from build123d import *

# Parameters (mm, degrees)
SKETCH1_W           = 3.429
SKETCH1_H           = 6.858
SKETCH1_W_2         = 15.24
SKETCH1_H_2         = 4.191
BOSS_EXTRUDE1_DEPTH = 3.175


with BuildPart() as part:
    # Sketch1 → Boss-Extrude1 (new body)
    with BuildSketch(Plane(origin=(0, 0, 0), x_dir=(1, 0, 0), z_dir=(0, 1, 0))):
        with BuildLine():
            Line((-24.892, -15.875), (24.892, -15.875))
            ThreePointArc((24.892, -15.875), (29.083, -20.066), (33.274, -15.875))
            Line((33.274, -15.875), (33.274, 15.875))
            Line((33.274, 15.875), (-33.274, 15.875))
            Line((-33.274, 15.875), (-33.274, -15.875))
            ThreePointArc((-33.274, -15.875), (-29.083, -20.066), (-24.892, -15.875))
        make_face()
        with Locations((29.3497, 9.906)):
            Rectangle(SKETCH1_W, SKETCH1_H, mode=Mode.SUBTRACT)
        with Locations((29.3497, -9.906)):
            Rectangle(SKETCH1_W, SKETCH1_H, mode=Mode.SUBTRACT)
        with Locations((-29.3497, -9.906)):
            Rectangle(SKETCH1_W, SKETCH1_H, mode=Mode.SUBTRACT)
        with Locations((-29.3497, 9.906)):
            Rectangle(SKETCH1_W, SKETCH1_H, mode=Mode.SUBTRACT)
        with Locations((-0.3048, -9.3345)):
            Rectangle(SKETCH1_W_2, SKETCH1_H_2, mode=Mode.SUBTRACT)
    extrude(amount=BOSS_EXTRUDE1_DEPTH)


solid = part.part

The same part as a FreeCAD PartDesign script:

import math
import FreeCAD as App
import Part
import Sketcher
Q = App.Units.Quantity


def add_polygon(sketch, points):
    """Adds a closed chain of lines whose ends are joined by coincident constraints."""
    first, n = sketch.GeometryCount, len(points)
    for a, b in zip(points, points[1:] + points[:1]):
        sketch.addGeometry(Part.LineSegment(App.Vector(*a, 0), App.Vector(*b, 0)), False)
    for i in range(n):
        sketch.addConstraint(Sketcher.Constraint("Coincident", first + i, 2, first + (i + 1) % n, 1))

doc = App.newDocument("Part")
body = doc.addObject("PartDesign::Body", "Body")

# Sketch on XZ plane
sketch1 = body.newObject("Sketcher::SketchObject", "Sketch")
sketch1.AttachmentSupport = (doc.getObject("XZ_Plane"), [""])
sketch1.MapMode = "FlatFace"
sketch1.addGeometry(Part.LineSegment(App.Vector(-24.9, 15.9, 0), App.Vector(24.9, 15.9, 0)), False)  # 0
sketch1.addGeometry(Part.ArcOfCircle(Part.Circle(App.Vector(29.1, 15.9, 0), App.Vector(0, 0, 1), 4.2), math.radians(0), math.radians(180)), False)  # 1
sketch1.addGeometry(Part.LineSegment(App.Vector(33.3, 15.9, 0), App.Vector(33.3, -15.9, 0)), False)  # 2
sketch1.addGeometry(Part.LineSegment(App.Vector(33.3, -15.9, 0), App.Vector(-33.3, -15.9, 0)), False)  # 3
sketch1.addGeometry(Part.LineSegment(App.Vector(-33.3, -15.9, 0), App.Vector(-33.3, 15.9, 0)), False)  # 4
sketch1.addGeometry(Part.ArcOfCircle(Part.Circle(App.Vector(-29.1, 15.9, 0), App.Vector(0, 0, 1), 4.2), math.radians(0), math.radians(180)), False)  # 5
add_polygon(sketch1, [(-27.6, 13.3), (-31.1, 13.3), (-31.1, 6.5), (-27.6, 6.5)])  # lines 6-9
add_polygon(sketch1, [(7.3, 11.4), (-7.9, 11.4), (-7.9, 7.2), (7.3, 7.2)])  # lines 10-13
add_polygon(sketch1, [(31.1, 13.3), (27.6, 13.3), (27.6, 6.5), (31.1, 6.5)])  # lines 14-17
add_polygon(sketch1, [(-27.6, -6.5), (-31.1, -6.5), (-31.1, -13.3), (-27.6, -13.3)])  # lines 18-21
add_polygon(sketch1, [(31.1, -6.5), (27.6, -6.5), (27.6, -13.3), (31.1, -13.3)])  # lines 22-25
sketch1.addConstraint(Sketcher.Constraint("Coincident", 0, 2, 1, 2))
sketch1.addConstraint(Sketcher.Constraint("Tangent", 1, 1, 2, 1))
sketch1.addConstraint(Sketcher.Constraint("Coincident", 2, 2, 3, 1))
sketch1.addConstraint(Sketcher.Constraint("Coincident", 3, 2, 4, 1))
sketch1.addConstraint(Sketcher.Constraint("Tangent", 4, 2, 5, 2))
sketch1.addConstraint(Sketcher.Constraint("Coincident", 5, 1, 0, 1))
sketch1.addConstraint(Sketcher.Constraint("Horizontal", 0))
sketch1.addConstraint(Sketcher.Constraint("Vertical", 2))
sketch1.addConstraint(Sketcher.Constraint("Horizontal", 3))
sketch1.addConstraint(Sketcher.Constraint("Vertical", 4))
sketch1.addConstraint(Sketcher.Constraint("Horizontal", 6))
sketch1.addConstraint(Sketcher.Constraint("Vertical", 7))
sketch1.addConstraint(Sketcher.Constraint("Horizontal", 8))
sketch1.addConstraint(Sketcher.Constraint("Vertical", 9))
sketch1.addConstraint(Sketcher.Constraint("Horizontal", 10))
sketch1.addConstraint(Sketcher.Constraint("Vertical", 11))
sketch1.addConstraint(Sketcher.Constraint("Horizontal", 12))
sketch1.addConstraint(Sketcher.Constraint("Vertical", 13))
sketch1.addConstraint(Sketcher.Constraint("Horizontal", 14))
sketch1.addConstraint(Sketcher.Constraint("Vertical", 15))
sketch1.addConstraint(Sketcher.Constraint("Horizontal", 16))
sketch1.addConstraint(Sketcher.Constraint("Vertical", 17))
sketch1.addConstraint(Sketcher.Constraint("Horizontal", 18))
sketch1.addConstraint(Sketcher.Constraint("Vertical", 19))
sketch1.addConstraint(Sketcher.Constraint("Horizontal", 20))
sketch1.addConstraint(Sketcher.Constraint("Vertical", 21))
sketch1.addConstraint(Sketcher.Constraint("Horizontal", 22))
sketch1.addConstraint(Sketcher.Constraint("Vertical", 23))
sketch1.addConstraint(Sketcher.Constraint("Horizontal", 24))
sketch1.addConstraint(Sketcher.Constraint("Vertical", 25))
sketch1.addConstraint(Sketcher.Constraint("Equal", 1, 5))
sketch1.addConstraint(Sketcher.Constraint("Symmetric", 1, 1, 3, 2, -1, 1))
sketch1.addConstraint(Sketcher.Constraint("Symmetric", 16, 2, 18, 2, -1, 1))
sketch1.addConstraint(Sketcher.Constraint("Symmetric", 14, 2, 20, 2, -1, 1))
sketch1.addConstraint(Sketcher.Constraint("Symmetric", 8, 2, 22, 2, -1, 1))
sketch1.addConstraint(Sketcher.Constraint("Symmetric", 6, 2, 24, 2, -1, 1))
sketch1.addConstraint(Sketcher.Constraint("Symmetric", 9, 2, 14, 2, -2))
sketch1.addConstraint(Sketcher.Constraint("Symmetric", 7, 2, 16, 2, -2))
sketch1.addConstraint(Sketcher.Constraint("Horizontal", 1, 3, 5, 3))
sketch1.addConstraint(Sketcher.Constraint("Horizontal", 5, 3, 0, 2))
sketch1.addConstraint(Sketcher.Constraint("DistanceX", 10, 2, 10, 1, Q("0.6 in")))
sketch1.addConstraint(Sketcher.Constraint("Radius", 1, Q("0.165 in")))
sketch1.addConstraint(Sketcher.Constraint("DistanceX", 0, 1, 0, 2, Q("1.96 in")))
sketch1.addConstraint(Sketcher.Constraint("DistanceY", 2, 2, 2, 1, Q("1.25 in")))
sketch1.addConstraint(Sketcher.Constraint("DistanceY", 7, 2, 7, 1, Q("0.27 in")))
sketch1.addConstraint(Sketcher.Constraint("DistanceY", 6, 2, 5, 3, Q("0.1 in")))
sketch1.addConstraint(Sketcher.Constraint("DistanceX", 13, 2, 14, 2, Q("0.8 in")))
sketch1.addConstraint(Sketcher.Constraint("DistanceX", 6, 2, 6, 1, Q("0.135 in")))
sketch1.addConstraint(Sketcher.Constraint("DistanceY", 11, 2, 11, 1, Q("0.165 in")))
sketch1.addConstraint(Sketcher.Constraint("DistanceY", -1, 1, 10, 2, Q("0.45 in")))
sketch1.addConstraint(Sketcher.Constraint("DistanceX", 6, 2, -1, 1, Q("1.223 in")))
pad1 = body.newObject("PartDesign::Pad", "Pad")
pad1.Profile = sketch1
pad1.Length = Q("0.125 in")
pad1.Reversed = True

doc.recompute()
